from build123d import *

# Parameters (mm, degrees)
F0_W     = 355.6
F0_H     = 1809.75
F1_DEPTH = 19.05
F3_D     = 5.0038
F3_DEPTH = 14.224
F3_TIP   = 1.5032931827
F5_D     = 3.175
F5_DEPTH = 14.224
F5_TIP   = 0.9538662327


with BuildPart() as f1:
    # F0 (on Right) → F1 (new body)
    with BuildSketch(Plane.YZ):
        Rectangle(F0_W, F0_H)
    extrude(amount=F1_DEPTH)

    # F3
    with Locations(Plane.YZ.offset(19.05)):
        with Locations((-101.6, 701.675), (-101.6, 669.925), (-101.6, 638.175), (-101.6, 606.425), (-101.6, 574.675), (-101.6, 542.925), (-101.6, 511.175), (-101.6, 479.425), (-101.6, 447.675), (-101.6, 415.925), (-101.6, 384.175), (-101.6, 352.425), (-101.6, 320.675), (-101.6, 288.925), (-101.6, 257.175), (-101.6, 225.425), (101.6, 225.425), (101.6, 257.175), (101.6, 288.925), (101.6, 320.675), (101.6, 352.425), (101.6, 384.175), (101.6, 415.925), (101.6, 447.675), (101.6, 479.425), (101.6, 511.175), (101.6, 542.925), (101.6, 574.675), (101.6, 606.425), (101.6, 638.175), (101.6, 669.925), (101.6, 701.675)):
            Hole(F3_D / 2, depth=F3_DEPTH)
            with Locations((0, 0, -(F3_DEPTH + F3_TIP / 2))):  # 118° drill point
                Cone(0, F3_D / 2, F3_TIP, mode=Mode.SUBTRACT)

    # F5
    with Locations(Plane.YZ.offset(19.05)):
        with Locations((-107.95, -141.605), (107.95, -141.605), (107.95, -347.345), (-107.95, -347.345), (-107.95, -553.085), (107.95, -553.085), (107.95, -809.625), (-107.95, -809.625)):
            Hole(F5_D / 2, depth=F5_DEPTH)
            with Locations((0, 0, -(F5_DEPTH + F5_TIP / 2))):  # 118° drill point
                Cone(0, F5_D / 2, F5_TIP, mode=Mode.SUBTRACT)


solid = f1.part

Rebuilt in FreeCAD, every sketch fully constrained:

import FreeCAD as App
import Part
import Sketcher
Q = App.Units.Quantity


def add_polygon(sketch, points):
    """Adds a closed chain of lines whose ends are joined by coincident constraints."""
    first, n = sketch.GeometryCount, len(points)
    for a, b in zip(points, points[1:] + points[:1]):
        sketch.addGeometry(Part.LineSegment(App.Vector(*a, 0), App.Vector(*b, 0)), False)
    for i in range(n):
        sketch.addConstraint(Sketcher.Constraint("Coincident", first + i, 2, first + (i + 1) % n, 1))

doc = App.newDocument("Part")
body = doc.addObject("PartDesign::Body", "Body")

# Sketch on YZ plane
sketch1 = doc.addObject("Sketcher::SketchObject", "Sketch")
body.addObject(sketch1)
sketch1.AttachmentSupport = (doc.YZ_Plane, [""])
sketch1.MapMode = "FlatFace"
add_polygon(sketch1, [(-178, 905), (-178, -905), (178, -905), (178, 905)])  # lines 0-3
sketch1.addConstraint(Sketcher.Constraint("Vertical", 0))
sketch1.addConstraint(Sketcher.Constraint("Horizontal", 1))
sketch1.addConstraint(Sketcher.Constraint("Vertical", 2))
sketch1.addConstraint(Sketcher.Constraint("Horizontal", 3))
sketch1.addConstraint(Sketcher.Constraint("Symmetric", 0, 2, 2, 2, -1, 1))
sketch1.addConstraint(Sketcher.Constraint("DistanceX", 1, 1, 1, 2, Q("14 in")))
sketch1.addConstraint(Sketcher.Constraint("DistanceY", 0, 2, 0, 1, Q("71.25 in")))
pad1 = doc.addObject("PartDesign::Pad", "Pad")
body.addObject(pad1)
pad1.Profile = sketch1
pad1.Length = Q("0.75 in")

# Sketch on YZ plane
sketch2 = doc.addObject("Sketcher::SketchObject", "Sketch001")
body.addObject(sketch2)
sketch2.AttachmentSupport = (doc.YZ_Plane, [""])
sketch2.MapMode = "FlatFace"
sketch2.AttachmentOffset = App.Placement(App.Vector(0, 0, 0.75 * 25.4), App.Rotation())
sketch2.addGeometry(Part.Circle(App.Vector(-101.6, 701.7, 0), App.Vector(0, 0, 1), 2.5), False)
sketch2.addGeometry(Part.Circle(App.Vector(-101.6, 669.9, 0), App.Vector(0, 0, 1), 2.5), False)
sketch2.addGeometry(Part.Circle(App.Vector(-101.6, 638.2, 0), App.Vector(0, 0, 1), 2.5), False)
sketch2.addGeometry(Part.Circle(App.Vector(-101.6, 606.4, 0), App.Vector(0, 0, 1), 2.5), False)
sketch2.addGeometry(Part.Circle(App.Vector(-101.6, 574.7, 0), App.Vector(0, 0, 1), 2.5), False)
sketch2.addGeometry(Part.Circle(App.Vector(-101.6, 542.9, 0), App.Vector(0, 0, 1), 2.5), False)
sketch2.addGeometry(Part.Circle(App.Vector(-101.6, 511.2, 0), App.Vector(0, 0, 1), 2.5), False)
sketch2.addGeometry(Part.Circle(App.Vector(-101.6, 479.4, 0), App.Vector(0, 0, 1), 2.5), False)
sketch2.addGeometry(Part.Circle(App.Vector(-101.6, 447.7, 0), App.Vector(0, 0, 1), 2.5), False)
sketch2.addGeometry(Part.Circle(App.Vector(-101.6, 415.9, 0), App.Vector(0, 0, 1), 2.5), False)
sketch2.addGeometry(Part.Circle(App.Vector(-101.6, 384.2, 0), App.Vector(0, 0, 1), 2.5), False)
sketch2.addGeometry(Part.Circle(App.Vector(-101.6, 352.4, 0), App.Vector(0, 0, 1), 2.5), False)
sketch2.addGeometry(Part.Circle(App.Vector(-101.6, 320.7, 0), App.Vector(0, 0, 1), 2.5), False)
sketch2.addGeometry(Part.Circle(App.Vector(-101.6, 288.9, 0), App.Vector(0, 0, 1), 2.5), False)
sketch2.addGeometry(Part.Circle(App.Vector(-101.6, 257.2, 0), App.Vector(0, 0, 1), 2.5), False)
sketch2.addGeometry(Part.Circle(App.Vector(-101.6, 225.4, 0), App.Vector(0, 0, 1), 2.5), False)
sketch2.addGeometry(Part.Circle(App.Vector(101.6, 225.4, 0), App.Vector(0, 0, 1), 2.5), False)
sketch2.addGeometry(Part.Circle(App.Vector(101.6, 257.2, 0), App.Vector(0, 0, 1), 2.5), False)
sketch2.addGeometry(Part.Circle(App.Vector(101.6, 288.9, 0), App.Vector(0, 0, 1), 2.5), False)
sketch2.addGeometry(Part.Circle(App.Vector(101.6, 320.7, 0), App.Vector(0, 0, 1), 2.5), False)
sketch2.addGeometry(Part.Circle(App.Vector(101.6, 352.4, 0), App.Vector(0, 0, 1), 2.5), False)
sketch2.addGeometry(Part.Circle(App.Vector(101.6, 384.2, 0), App.Vector(0, 0, 1), 2.5), False)
sketch2.addGeometry(Part.Circle(App.Vector(101.6, 415.9, 0), App.Vector(0, 0, 1), 2.5), False)
sketch2.addGeometry(Part.Circle(App.Vector(101.6, 447.7, 0), App.Vector(0, 0, 1), 2.5), False)
sketch2.addGeometry(Part.Circle(App.Vector(101.6, 479.4, 0), App.Vector(0, 0, 1), 2.5), False)
sketch2.addGeometry(Part.Circle(App.Vector(101.6, 511.2, 0), App.Vector(0, 0, 1), 2.5), False)
sketch2.addGeometry(Part.Circle(App.Vector(101.6, 542.9, 0), App.Vector(0, 0, 1), 2.5), False)
sketch2.addGeometry(Part.Circle(App.Vector(101.6, 574.7, 0), App.Vector(0, 0, 1), 2.5), False)
sketch2.addGeometry(Part.Circle(App.Vector(101.6, 606.4, 0), App.Vector(0, 0, 1), 2.5), False)
sketch2.addGeometry(Part.Circle(App.Vector(101.6, 638.2, 0), App.Vector(0, 0, 1), 2.5), False)
sketch2.addGeometry(Part.Circle(App.Vector(101.6, 669.9, 0), App.Vector(0, 0, 1), 2.5), False)
sketch2.addGeometry(Part.Circle(App.Vector(101.6, 701.7, 0), App.Vector(0, 0, 1), 2.5), False)
sketch2.addConstraint(Sketcher.Constraint("Equal", 0, 1))
sketch2.addConstraint(Sketcher.Constraint("Equal", 1, 2))
sketch2.addConstraint(Sketcher.Constraint("Equal", 2, 3))
sketch2.addConstraint(Sketcher.Constraint("Equal", 3, 4))
sketch2.addConstraint(Sketcher.Constraint("Equal", 4, 5))
sketch2.addConstraint(Sketcher.Constraint("Equal", 5, 6))
sketch2.addConstraint(Sketcher.Constraint("Equal", 6, 7))
sketch2.addConstraint(Sketcher.Constraint("Equal", 7, 8))
sketch2.addConstraint(Sketcher.Constraint("Equal", 8, 9))
sketch2.addConstraint(Sketcher.Constraint("Equal", 9, 10))
sketch2.addConstraint(Sketcher.Constraint("Equal", 10, 11))
sketch2.addConstraint(Sketcher.Constraint("Equal", 11, 12))
sketch2.addConstraint(Sketcher.Constraint("Equal", 12, 13))
sketch2.addConstraint(Sketcher.Constraint("Equal", 13, 14))
sketch2.addConstraint(Sketcher.Constraint("Equal", 14, 15))
sketch2.addConstraint(Sketcher.Constraint("Equal", 15, 16))
sketch2.addConstraint(Sketcher.Constraint("Equal", 16, 17))
sketch2.addConstraint(Sketcher.Constraint("Equal", 17, 18))
sketch2.addConstraint(Sketcher.Constraint("Equal", 18, 19))
sketch2.addConstraint(Sketcher.Constraint("Equal", 19, 20))
sketch2.addConstraint(Sketcher.Constraint("Equal", 20, 21))
sketch2.addConstraint(Sketcher.Constraint("Equal", 21, 22))
sketch2.addConstraint(Sketcher.Constraint("Equal", 22, 23))
sketch2.addConstraint(Sketcher.Constraint("Equal", 23, 24))
sketch2.addConstraint(Sketcher.Constraint("Equal", 24, 25))
sketch2.addConstraint(Sketcher.Constraint("Equal", 25, 26))
sketch2.addConstraint(Sketcher.Constraint("Equal", 26, 27))
sketch2.addConstraint(Sketcher.Constraint("Equal", 27, 28))
sketch2.addConstraint(Sketcher.Constraint("Equal", 28, 29))
sketch2.addConstraint(Sketcher.Constraint("Equal", 29, 30))
sketch2.addConstraint(Sketcher.Constraint("Equal", 30, 31))
sketch2.addConstraint(Sketcher.Constraint("Symmetric", 15, 3, 16, 3, -2))
sketch2.addConstraint(Sketcher.Constraint("Symmetric", 14, 3, 17, 3, -2))
sketch2.addConstraint(Sketcher.Constraint("Symmetric", 13, 3, 18, 3, -2))
sketch2.addConstraint(Sketcher.Constraint("Symmetric", 12, 3, 19, 3, -2))
sketch2.addConstraint(Sketcher.Constraint("Symmetric", 11, 3, 20, 3, -2))
sketch2.addConstraint(Sketcher.Constraint("Symmetric", 10, 3, 21, 3, -2))
sketch2.addConstraint(Sketcher.Constraint("Symmetric", 9, 3, 22, 3, -2))
sketch2.addConstraint(Sketcher.Constraint("Symmetric", 8, 3, 23, 3, -2))
sketch2.addConstraint(Sketcher.Constraint("Symmetric", 7, 3, 24, 3, -2))
sketch2.addConstraint(Sketcher.Constraint("Symmetric", 6, 3, 25, 3, -2))
sketch2.addConstraint(Sketcher.Constraint("Symmetric", 5, 3, 26, 3, -2))
sketch2.addConstraint(Sketcher.Constraint("Symmetric", 4, 3, 27, 3, -2))
sketch2.addConstraint(Sketcher.Constraint("Symmetric", 3, 3, 28, 3, -2))
sketch2.addConstraint(Sketcher.Constraint("Symmetric", 2, 3, 29, 3, -2))
sketch2.addConstraint(Sketcher.Constraint("Symmetric", 1, 3, 30, 3, -2))
sketch2.addConstraint(Sketcher.Constraint("Symmetric", 0, 3, 31, 3, -2))
sketch2.addConstraint(Sketcher.Constraint("Vertical", 0, 3, 1, 3))
sketch2.addConstraint(Sketcher.Constraint("Vertical", 1, 3, 2, 3))
sketch2.addConstraint(Sketcher.Constraint("Vertical", 2, 3, 3, 3))
sketch2.addConstraint(Sketcher.Constraint("Vertical", 3, 3, 4, 3))
sketch2.addConstraint(Sketcher.Constraint("Vertical", 4, 3, 5, 3))
sketch2.addConstraint(Sketcher.Constraint("Vertical", 5, 3, 6, 3))
sketch2.addConstraint(Sketcher.Constraint("Vertical", 6, 3, 7, 3))
sketch2.addConstraint(Sketcher.Constraint("Vertical", 7, 3, 8, 3))
sketch2.addConstraint(Sketcher.Constraint("Vertical", 8, 3, 9, 3))
sketch2.addConstraint(Sketcher.Constraint("Vertical", 9, 3, 10, 3))
sketch2.addConstraint(Sketcher.Constraint("Vertical", 10, 3, 11, 3))
sketch2.addConstraint(Sketcher.Constraint("Vertical", 11, 3, 12, 3))
sketch2.addConstraint(Sketcher.Constraint("Vertical", 12, 3, 13, 3))
sketch2.addConstraint(Sketcher.Constraint("Vertical", 13, 3, 14, 3))
sketch2.addConstraint(Sketcher.Constraint("Vertical", 14, 3, 15, 3))
sketch2.addConstraint(Sketcher.Constraint("Diameter", 0, Q("0.197 in")))
sketch2.addConstraint(Sketcher.Constraint("DistanceX", 0, 3, -1, 1, Q("4 in")))
sketch2.addConstraint(Sketcher.Constraint("DistanceY", 4, 3, 0, 3, Q("5 in")))
sketch2.addConstraint(Sketcher.Constraint("DistanceY", 5, 3, 1, 3, Q("5 in")))
sketch2.addConstraint(Sketcher.Constraint("DistanceY", 6, 3, 2, 3, Q("5 in")))
sketch2.addConstraint(Sketcher.Constraint("DistanceY", 7, 3, 3, 3, Q("5 in")))
sketch2.addConstraint(Sketcher.Constraint("DistanceY", 8, 3, 4, 3, Q("5 in")))
sketch2.addConstraint(Sketcher.Constraint("DistanceY", 9, 3, 5, 3, Q("5 in")))
sketch2.addConstraint(Sketcher.Constraint("DistanceY", 10, 3, 6, 3, Q("5 in")))
sketch2.addConstraint(Sketcher.Constraint("DistanceY", 11, 3, 7, 3, Q("5 in")))
sketch2.addConstraint(Sketcher.Constraint("DistanceY", 12, 3, 8, 3, Q("5 in")))
sketch2.addConstraint(Sketcher.Constraint("DistanceY", 13, 3, 9, 3, Q("5 in")))
sketch2.addConstraint(Sketcher.Constraint("DistanceY", 14, 3, 10, 3, Q("5 in")))
sketch2.addConstraint(Sketcher.Constraint("DistanceY", 15, 3, 11, 3, Q("5 in")))
sketch2.addConstraint(Sketcher.Constraint("DistanceY", 2, 3, 0, 3, Q("2.5 in")))
sketch2.addConstraint(Sketcher.Constraint("DistanceY", 3, 3, 1, 3, Q("2.5 in")))
sketch2.addConstraint(Sketcher.Constraint("DistanceY", 1, 3, 0, 3, Q("1.25 in")))
sketch2.addConstraint(Sketcher.Constraint("DistanceY", -1, 1, 0, 3, Q("27.625 in")))
doc.recompute()
hole = doc.addObject("PartDesign::Hole", "Hole")
body.addObject(hole)
hole.Profile = sketch2
hole.ThreadType = "None"
hole.Diameter = Q("0.197 in")
hole.DepthType = "Dimension"
hole.Depth = Q("0.56 in")
hole.DrillPoint = "Angled"
hole.DrillPointAngle = 118

# Sketch on YZ plane
sketch3 = doc.addObject("Sketcher::SketchObject", "Sketch002")
body.addObject(sketch3)
sketch3.AttachmentSupport = (doc.YZ_Plane, [""])
sketch3.MapMode = "FlatFace"
sketch3.AttachmentOffset = App.Placement(App.Vector(0, 0, 0.75 * 25.4), App.Rotation())
sketch3.addGeometry(Part.Circle(App.Vector(-108, -141.6, 0), App.Vector(0, 0, 1), 1.6), False)
sketch3.addGeometry(Part.Circle(App.Vector(108, -141.6, 0), App.Vector(0, 0, 1), 1.6), False)
sketch3.addGeometry(Part.Circle(App.Vector(108, -347.3, 0), App.Vector(0, 0, 1), 1.6), False)
sketch3.addGeometry(Part.Circle(App.Vector(-108, -347.3, 0), App.Vector(0, 0, 1), 1.6), False)
sketch3.addGeometry(Part.Circle(App.Vector(-108, -553.1, 0), App.Vector(0, 0, 1), 1.6), False)
sketch3.addGeometry(Part.Circle(App.Vector(108, -553.1, 0), App.Vector(0, 0, 1), 1.6), False)
sketch3.addGeometry(Part.Circle(App.Vector(108, -809.6, 0), App.Vector(0, 0, 1), 1.6), False)
sketch3.addGeometry(Part.Circle(App.Vector(-108, -809.6, 0), App.Vector(0, 0, 1), 1.6), False)
sketch3.addConstraint(Sketcher.Constraint("Equal", 0, 1))
sketch3.addConstraint(Sketcher.Constraint("Equal", 1, 2))
sketch3.addConstraint(Sketcher.Constraint("Equal", 2, 3))
sketch3.addConstraint(Sketcher.Constraint("Equal", 3, 4))
sketch3.addConstraint(Sketcher.Constraint("Equal", 4, 5))
sketch3.addConstraint(Sketcher.Constraint("Equal", 5, 6))
sketch3.addConstraint(Sketcher.Constraint("Equal", 6, 7))
sketch3.addConstraint(Sketcher.Constraint("Symmetric", 0, 3, 1, 3, -2))
sketch3.addConstraint(Sketcher.Constraint("Symmetric", 2, 3, 3, 3, -2))
sketch3.addConstraint(Sketcher.Constraint("Symmetric", 4, 3, 5, 3, -2))
sketch3.addConstraint(Sketcher.Constraint("Symmetric", 6, 3, 7, 3, -2))
sketch3.addConstraint(Sketcher.Constraint("Vertical", 1, 3, 2, 3))
sketch3.addConstraint(Sketcher.Constraint("Vertical", 3, 3, 4, 3))
sketch3.addConstraint(Sketcher.Constraint("Vertical", 5, 3, 6, 3))
sketch3.addConstraint(Sketcher.Constraint("Diameter", 0, Q("0.125 in")))
sketch3.addConstraint(Sketcher.Constraint("DistanceX", 0, 3, 1, 3, Q("8.5 in")))
sketch3.addConstraint(Sketcher.Constraint("DistanceY", 2, 3, 1, 3, Q("8.1 in")))
sketch3.addConstraint(Sketcher.Constraint("DistanceY", 4, 3, 3, 3, Q("8.1 in")))
sketch3.addConstraint(Sketcher.Constraint("DistanceY", 6, 3, 5, 3, Q("10.1 in")))
sketch3.addConstraint(Sketcher.Constraint("DistanceY", 0, 3, -1, 1, Q("5.575 in")))
doc.recompute()
hole2 = doc.addObject("PartDesign::Hole", "Hole001")
body.addObject(hole2)
hole2.Profile = sketch3
hole2.ThreadType = "None"
hole2.Diameter = Q("0.125 in")
hole2.DepthType = "Dimension"
hole2.Depth = Q("0.56 in")
hole2.DrillPoint = "Angled"
hole2.DrillPointAngle = 118

doc.recompute()
